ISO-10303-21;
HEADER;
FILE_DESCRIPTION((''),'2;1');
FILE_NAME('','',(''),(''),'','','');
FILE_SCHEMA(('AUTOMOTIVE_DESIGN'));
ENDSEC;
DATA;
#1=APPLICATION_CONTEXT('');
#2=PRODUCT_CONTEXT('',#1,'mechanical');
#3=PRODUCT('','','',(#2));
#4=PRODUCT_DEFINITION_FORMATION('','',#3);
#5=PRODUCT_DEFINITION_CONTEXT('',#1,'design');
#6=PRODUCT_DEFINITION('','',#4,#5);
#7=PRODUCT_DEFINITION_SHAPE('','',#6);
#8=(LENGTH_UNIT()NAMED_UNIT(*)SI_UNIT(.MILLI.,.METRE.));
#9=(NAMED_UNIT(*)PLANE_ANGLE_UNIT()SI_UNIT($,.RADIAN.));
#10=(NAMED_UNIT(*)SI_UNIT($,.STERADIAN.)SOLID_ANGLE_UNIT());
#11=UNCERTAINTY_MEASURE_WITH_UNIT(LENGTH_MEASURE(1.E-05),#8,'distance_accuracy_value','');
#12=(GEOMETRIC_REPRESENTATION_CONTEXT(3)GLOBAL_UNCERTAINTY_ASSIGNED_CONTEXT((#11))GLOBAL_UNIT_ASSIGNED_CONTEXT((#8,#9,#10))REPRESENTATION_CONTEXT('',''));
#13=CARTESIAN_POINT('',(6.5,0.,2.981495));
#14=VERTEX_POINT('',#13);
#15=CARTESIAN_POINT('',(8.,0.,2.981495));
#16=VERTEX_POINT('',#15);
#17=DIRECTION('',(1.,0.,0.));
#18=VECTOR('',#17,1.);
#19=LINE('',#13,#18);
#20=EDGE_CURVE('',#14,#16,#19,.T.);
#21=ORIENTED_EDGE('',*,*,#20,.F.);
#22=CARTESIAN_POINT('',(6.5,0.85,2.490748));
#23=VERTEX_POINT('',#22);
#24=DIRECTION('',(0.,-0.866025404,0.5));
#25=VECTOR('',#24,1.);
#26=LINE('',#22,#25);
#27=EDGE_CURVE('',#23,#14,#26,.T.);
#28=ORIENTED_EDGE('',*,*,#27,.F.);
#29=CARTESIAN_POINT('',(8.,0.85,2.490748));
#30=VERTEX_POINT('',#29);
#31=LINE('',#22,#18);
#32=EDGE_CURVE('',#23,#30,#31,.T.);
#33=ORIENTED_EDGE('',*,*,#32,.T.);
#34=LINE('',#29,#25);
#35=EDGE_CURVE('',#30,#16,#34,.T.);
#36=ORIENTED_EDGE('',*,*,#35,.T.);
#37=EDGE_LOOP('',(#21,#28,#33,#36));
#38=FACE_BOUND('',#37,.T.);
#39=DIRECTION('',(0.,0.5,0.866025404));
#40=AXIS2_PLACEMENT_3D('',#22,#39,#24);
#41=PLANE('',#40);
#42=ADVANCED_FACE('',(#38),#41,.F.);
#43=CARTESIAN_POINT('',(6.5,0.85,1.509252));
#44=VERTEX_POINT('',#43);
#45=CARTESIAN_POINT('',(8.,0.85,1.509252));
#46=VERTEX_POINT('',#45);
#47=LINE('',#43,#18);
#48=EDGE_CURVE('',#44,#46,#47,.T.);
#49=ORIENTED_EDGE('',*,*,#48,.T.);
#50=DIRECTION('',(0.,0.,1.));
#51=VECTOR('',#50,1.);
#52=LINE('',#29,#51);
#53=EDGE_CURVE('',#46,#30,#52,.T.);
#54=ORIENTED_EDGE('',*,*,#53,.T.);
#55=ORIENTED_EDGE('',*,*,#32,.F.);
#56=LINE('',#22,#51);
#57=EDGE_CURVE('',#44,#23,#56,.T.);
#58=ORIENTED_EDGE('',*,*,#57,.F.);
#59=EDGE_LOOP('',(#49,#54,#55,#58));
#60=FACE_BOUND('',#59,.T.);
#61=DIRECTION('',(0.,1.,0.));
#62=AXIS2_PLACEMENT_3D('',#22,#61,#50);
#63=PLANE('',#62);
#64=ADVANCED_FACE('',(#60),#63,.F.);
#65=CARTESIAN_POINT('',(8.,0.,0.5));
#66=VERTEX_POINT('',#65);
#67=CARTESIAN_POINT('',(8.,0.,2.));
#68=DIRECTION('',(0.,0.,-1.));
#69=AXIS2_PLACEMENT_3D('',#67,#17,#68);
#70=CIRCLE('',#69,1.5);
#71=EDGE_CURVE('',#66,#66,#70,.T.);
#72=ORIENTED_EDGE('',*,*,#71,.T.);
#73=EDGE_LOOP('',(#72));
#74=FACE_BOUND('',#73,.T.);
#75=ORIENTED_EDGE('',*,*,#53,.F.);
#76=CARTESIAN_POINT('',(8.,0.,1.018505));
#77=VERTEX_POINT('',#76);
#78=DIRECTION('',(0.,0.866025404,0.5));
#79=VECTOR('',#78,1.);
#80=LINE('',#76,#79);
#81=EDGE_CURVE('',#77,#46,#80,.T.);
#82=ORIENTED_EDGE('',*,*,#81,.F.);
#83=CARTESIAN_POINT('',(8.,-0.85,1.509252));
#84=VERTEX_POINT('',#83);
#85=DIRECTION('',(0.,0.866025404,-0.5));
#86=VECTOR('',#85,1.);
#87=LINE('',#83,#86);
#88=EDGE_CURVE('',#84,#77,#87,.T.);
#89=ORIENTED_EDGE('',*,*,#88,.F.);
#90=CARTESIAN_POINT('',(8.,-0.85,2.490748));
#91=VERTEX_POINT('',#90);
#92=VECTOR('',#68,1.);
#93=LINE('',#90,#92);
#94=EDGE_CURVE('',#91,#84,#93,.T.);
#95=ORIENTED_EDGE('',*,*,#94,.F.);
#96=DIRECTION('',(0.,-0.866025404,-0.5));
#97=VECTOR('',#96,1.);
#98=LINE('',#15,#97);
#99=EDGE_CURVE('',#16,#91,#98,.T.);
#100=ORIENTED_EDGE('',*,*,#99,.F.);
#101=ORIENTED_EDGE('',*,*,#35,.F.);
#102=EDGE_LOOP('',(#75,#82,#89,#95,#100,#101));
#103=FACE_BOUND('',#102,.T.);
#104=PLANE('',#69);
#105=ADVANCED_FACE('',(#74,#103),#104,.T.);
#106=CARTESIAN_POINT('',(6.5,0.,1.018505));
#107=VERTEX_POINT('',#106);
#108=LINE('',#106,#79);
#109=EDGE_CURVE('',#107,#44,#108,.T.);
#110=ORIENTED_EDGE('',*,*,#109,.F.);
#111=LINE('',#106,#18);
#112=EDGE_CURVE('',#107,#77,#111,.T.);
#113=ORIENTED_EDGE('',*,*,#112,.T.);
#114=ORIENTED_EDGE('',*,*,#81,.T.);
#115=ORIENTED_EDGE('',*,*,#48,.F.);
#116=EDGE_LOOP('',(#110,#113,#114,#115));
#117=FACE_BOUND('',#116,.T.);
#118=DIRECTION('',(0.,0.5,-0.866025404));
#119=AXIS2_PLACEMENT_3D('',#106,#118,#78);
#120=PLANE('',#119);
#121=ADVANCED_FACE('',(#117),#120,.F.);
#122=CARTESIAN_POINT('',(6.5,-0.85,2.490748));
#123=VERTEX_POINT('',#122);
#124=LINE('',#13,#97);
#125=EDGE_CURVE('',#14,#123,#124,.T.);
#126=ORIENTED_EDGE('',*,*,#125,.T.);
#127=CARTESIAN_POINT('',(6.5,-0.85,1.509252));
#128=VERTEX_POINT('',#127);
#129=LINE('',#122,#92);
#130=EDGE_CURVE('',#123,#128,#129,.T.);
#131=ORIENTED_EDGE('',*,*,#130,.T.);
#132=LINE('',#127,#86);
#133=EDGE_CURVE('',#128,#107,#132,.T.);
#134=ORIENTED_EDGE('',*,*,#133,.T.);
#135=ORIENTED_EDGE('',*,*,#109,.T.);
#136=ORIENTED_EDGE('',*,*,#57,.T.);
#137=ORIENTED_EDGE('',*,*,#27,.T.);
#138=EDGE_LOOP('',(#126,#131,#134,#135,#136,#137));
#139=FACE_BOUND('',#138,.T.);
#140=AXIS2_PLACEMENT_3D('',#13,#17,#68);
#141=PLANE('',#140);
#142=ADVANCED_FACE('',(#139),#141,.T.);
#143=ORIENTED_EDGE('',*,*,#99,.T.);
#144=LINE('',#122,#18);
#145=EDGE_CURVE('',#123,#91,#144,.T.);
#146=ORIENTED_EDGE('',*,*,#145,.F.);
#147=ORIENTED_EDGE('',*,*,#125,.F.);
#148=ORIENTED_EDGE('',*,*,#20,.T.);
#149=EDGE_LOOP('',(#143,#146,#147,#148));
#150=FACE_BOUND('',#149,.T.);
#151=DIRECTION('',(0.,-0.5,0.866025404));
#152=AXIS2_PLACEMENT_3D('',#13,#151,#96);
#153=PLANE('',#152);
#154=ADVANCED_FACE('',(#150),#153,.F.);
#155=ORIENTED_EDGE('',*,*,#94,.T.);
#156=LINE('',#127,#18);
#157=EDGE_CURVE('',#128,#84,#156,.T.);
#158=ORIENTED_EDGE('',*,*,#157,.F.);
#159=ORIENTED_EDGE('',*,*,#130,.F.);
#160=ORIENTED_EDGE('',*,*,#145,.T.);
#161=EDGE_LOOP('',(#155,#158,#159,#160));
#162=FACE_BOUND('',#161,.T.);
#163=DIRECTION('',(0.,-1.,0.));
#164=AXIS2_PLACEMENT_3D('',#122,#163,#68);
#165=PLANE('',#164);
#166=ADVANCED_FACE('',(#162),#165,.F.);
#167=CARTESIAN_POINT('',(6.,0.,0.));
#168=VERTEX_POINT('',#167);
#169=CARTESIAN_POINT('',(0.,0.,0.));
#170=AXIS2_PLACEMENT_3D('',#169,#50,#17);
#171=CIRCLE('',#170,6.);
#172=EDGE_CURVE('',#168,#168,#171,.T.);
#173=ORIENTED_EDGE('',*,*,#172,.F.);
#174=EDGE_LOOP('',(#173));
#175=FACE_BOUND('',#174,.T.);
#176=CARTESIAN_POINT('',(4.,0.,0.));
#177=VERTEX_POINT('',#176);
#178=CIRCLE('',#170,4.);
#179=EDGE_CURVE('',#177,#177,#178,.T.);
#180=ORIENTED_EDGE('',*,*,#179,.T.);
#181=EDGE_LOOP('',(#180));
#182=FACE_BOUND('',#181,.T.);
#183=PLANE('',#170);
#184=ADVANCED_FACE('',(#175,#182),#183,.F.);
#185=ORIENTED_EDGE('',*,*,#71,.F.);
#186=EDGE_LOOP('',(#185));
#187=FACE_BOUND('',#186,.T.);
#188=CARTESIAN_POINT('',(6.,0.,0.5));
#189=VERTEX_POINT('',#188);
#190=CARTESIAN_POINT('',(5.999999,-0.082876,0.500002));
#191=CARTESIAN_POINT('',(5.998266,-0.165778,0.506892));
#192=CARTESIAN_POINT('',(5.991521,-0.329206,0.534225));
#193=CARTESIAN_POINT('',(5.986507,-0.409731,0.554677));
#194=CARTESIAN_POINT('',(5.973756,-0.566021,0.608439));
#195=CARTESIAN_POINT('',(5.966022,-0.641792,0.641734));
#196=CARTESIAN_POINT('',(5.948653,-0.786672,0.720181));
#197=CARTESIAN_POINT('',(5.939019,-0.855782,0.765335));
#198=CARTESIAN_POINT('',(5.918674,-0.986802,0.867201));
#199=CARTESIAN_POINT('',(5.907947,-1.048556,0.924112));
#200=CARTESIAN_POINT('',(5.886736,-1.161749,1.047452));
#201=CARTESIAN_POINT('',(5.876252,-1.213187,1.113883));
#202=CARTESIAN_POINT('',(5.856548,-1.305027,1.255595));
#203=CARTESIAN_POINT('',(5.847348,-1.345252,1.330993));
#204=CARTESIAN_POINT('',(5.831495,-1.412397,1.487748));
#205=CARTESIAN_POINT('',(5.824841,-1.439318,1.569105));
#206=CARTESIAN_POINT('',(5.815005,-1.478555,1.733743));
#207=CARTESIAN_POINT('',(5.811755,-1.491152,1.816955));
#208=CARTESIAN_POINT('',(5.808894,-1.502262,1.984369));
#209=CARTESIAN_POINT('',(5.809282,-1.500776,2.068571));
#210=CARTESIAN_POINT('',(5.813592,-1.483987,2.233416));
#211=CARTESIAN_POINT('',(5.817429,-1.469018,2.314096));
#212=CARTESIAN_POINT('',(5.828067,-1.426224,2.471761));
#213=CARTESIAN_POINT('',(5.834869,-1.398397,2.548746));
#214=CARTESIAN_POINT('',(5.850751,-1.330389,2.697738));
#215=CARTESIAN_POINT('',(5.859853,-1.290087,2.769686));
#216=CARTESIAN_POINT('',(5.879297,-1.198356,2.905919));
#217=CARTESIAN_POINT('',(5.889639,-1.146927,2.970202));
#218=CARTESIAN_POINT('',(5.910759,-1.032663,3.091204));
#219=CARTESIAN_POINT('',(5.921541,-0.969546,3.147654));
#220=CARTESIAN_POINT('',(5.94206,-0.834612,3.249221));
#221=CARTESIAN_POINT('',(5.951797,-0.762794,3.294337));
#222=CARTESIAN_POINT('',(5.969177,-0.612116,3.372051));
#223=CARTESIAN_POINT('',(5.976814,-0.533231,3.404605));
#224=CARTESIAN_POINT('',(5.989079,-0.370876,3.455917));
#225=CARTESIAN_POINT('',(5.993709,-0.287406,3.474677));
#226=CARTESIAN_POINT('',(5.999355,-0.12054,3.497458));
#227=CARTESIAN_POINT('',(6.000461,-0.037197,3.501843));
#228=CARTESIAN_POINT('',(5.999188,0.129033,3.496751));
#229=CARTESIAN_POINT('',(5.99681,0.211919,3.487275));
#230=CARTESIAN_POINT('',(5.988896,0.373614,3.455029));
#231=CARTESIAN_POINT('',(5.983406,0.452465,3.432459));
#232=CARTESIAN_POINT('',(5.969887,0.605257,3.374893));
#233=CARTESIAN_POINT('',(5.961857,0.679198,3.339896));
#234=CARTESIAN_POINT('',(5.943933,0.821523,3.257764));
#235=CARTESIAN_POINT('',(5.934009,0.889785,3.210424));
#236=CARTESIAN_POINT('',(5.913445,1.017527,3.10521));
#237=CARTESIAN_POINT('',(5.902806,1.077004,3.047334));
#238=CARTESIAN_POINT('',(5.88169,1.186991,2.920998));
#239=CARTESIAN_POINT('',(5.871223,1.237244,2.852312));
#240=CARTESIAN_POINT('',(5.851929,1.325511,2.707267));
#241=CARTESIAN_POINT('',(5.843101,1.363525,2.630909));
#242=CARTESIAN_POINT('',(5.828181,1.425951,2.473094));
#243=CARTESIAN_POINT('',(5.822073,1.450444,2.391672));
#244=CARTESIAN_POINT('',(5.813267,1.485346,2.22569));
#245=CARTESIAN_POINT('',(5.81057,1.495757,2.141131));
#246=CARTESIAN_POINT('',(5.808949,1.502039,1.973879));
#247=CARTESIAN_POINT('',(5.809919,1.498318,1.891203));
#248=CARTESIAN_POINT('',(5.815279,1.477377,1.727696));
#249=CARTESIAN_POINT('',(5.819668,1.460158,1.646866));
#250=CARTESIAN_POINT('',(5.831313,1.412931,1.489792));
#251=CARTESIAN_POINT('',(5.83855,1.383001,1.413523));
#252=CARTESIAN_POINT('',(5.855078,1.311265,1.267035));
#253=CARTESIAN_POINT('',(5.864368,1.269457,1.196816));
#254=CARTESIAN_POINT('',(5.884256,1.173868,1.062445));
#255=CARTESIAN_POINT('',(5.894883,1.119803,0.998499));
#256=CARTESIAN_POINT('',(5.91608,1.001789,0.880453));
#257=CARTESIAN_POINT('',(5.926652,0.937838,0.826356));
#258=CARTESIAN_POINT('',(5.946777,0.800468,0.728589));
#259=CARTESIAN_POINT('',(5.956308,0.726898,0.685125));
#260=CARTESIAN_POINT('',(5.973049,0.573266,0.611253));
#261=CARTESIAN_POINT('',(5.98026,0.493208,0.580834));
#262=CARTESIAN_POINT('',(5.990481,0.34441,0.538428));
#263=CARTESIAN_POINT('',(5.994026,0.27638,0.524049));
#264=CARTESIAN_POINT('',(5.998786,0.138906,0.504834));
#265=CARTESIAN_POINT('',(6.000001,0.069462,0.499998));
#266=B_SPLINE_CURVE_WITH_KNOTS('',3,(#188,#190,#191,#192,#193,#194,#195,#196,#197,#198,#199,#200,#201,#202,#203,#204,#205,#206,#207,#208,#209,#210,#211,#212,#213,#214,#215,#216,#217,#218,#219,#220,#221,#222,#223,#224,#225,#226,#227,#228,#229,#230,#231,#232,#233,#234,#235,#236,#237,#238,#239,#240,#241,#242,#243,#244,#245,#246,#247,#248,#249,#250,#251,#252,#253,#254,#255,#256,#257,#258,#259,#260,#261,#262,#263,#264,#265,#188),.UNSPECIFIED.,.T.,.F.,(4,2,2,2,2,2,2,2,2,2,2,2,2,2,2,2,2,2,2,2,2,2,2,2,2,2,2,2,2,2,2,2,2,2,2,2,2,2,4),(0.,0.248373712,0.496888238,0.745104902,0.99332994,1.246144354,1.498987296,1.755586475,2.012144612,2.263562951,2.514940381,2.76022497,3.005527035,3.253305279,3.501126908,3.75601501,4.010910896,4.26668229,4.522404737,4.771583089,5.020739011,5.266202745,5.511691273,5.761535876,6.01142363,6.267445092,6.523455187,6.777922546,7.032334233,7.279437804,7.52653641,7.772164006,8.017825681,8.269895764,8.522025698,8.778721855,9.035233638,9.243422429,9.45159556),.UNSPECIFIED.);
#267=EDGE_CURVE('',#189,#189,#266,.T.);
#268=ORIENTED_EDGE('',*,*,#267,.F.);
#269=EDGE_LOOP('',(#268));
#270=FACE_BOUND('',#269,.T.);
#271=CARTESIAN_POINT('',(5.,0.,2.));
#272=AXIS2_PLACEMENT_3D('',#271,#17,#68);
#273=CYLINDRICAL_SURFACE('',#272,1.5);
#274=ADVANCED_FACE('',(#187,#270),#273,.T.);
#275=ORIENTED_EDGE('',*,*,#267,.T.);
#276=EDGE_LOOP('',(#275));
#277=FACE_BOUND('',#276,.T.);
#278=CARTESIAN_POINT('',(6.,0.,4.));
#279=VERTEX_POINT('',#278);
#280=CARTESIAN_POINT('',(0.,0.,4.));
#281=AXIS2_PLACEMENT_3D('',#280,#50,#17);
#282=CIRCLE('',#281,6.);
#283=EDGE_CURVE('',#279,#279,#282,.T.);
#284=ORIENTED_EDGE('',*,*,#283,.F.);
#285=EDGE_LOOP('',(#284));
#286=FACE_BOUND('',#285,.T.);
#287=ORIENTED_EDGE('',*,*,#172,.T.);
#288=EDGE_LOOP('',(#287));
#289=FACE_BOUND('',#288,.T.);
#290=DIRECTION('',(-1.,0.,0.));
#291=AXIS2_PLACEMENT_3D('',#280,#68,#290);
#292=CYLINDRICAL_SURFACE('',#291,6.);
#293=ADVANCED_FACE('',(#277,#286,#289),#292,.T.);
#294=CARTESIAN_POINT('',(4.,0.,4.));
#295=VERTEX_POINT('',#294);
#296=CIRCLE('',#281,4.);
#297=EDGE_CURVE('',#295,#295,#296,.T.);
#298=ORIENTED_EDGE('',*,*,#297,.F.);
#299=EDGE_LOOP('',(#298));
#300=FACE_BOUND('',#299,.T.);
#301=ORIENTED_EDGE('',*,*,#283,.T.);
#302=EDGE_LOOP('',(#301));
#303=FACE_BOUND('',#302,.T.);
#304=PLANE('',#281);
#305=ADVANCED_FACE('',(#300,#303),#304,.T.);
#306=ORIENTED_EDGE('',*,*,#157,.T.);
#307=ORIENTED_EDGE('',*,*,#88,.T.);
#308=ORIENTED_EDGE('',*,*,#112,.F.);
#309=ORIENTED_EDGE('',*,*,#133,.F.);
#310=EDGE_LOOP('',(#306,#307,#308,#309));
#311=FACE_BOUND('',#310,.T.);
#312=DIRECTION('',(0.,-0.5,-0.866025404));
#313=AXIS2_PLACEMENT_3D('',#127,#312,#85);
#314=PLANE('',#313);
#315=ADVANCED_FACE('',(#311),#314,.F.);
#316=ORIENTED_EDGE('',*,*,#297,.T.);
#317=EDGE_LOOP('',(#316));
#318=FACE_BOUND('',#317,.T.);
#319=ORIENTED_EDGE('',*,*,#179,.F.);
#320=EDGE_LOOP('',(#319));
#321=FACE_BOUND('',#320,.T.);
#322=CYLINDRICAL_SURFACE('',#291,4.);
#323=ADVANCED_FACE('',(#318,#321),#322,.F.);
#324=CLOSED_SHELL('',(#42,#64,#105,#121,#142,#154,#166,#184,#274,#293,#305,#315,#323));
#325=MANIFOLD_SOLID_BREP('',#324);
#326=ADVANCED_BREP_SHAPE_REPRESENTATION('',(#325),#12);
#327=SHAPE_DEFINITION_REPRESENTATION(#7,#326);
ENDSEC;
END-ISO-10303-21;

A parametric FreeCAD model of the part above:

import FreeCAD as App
import Part
import Sketcher
Q = App.Units.Quantity

doc = App.newDocument("Part")
body = doc.addObject("PartDesign::Body", "Body")

sketch1 = body.newObject("Sketcher::SketchObject", "Sketch")
sketch1.AttachmentSupport = (doc.getObject("XY_Plane"), [""])
sketch1.MapMode = "FlatFace"
sketch1.addGeometry(Part.Circle(App.Vector(0, 0, 0), App.Vector(0, 0, 1), 6), False)
sketch1.addGeometry(Part.Circle(App.Vector(0, 0, 0), App.Vector(0, 0, 1), 4), False)
sketch1.addConstraint(Sketcher.Constraint("Coincident", 0, 3, -1, 1))
sketch1.addConstraint(Sketcher.Constraint("Coincident", 1, 3, -1, 1))
sketch1.addConstraint(Sketcher.Constraint("Diameter", 0, 12.0))
sketch1.addConstraint(Sketcher.Constraint("Diameter", 1, 8.0))
pad1 = body.newObject("PartDesign::Pad", "Pad")
pad1.Profile = sketch1
pad1.Length = 4

sketch2 = body.newObject("Sketcher::SketchObject", "Sketch001")
sketch2.AttachmentSupport = (doc.getObject("YZ_Plane"), [""])
sketch2.MapMode = "FlatFace"
sketch2.AttachmentOffset = App.Placement(App.Vector(0, 0, 6), App.Rotation())
sketch2.addGeometry(Part.Circle(App.Vector(0, 2, 0), App.Vector(0, 0, 1), 1.5), False)
sketch2.addConstraint(Sketcher.Constraint("PointOnObject", 0, 3, -2))
sketch2.addConstraint(Sketcher.Constraint("Diameter", 0, 3.0))
sketch2.addConstraint(Sketcher.Constraint("DistanceY", -1, 1, 0, 3, 2.0))
pad2 = body.newObject("PartDesign::Pad", "Pad001")
pad2.Profile = sketch2
pad2.Type = "TwoLengths"
pad2.Length = 2
pad2.Length2 = 1

sketch3 = body.newObject("Sketcher::SketchObject", "Sketch002")
sketch3.AttachmentSupport = (doc.getObject("YZ_Plane"), [""])
sketch3.MapMode = "FlatFace"
sketch3.AttachmentOffset = App.Placement(App.Vector(0, 0, 8), App.Rotation())
sketch3.addGeometry(Part.LineSegment(App.Vector(0.8, 1.5, 0), App.Vector(0.8, 2.5, 0)), False)
sketch3.addGeometry(Part.LineSegment(App.Vector(0.8, 2.5, 0), App.Vector(0, 3, 0)), False)
sketch3.addGeometry(Part.LineSegment(App.Vector(0, 3, 0), App.Vector(-0.8, 2.5, 0)), False)
sketch3.addGeometry(Part.LineSegment(App.Vector(-0.8, 2.5, 0), App.Vector(-0.8, 1.5, 0)), False)
sketch3.addGeometry(Part.LineSegment(App.Vector(-0.8, 1.5, 0), App.Vector(0, 1, 0)), False)
sketch3.addGeometry(Part.LineSegment(App.Vector(0, 1, 0), App.Vector(0.8, 1.5, 0)), False)
sketch3.addConstraint(Sketcher.Constraint("Coincident", 0, 2, 1, 1))
sketch3.addConstraint(Sketcher.Constraint("Coincident", 1, 2, 2, 1))
sketch3.addConstraint(Sketcher.Constraint("Coincident", 2, 2, 3, 1))
sketch3.addConstraint(Sketcher.Constraint("Coincident", 3, 2, 4, 1))
sketch3.addConstraint(Sketcher.Constraint("Coincident", 4, 2, 5, 1))
sketch3.addConstraint(Sketcher.Constraint("Coincident", 5, 2, 0, 1))
sketch3.addConstraint(Sketcher.Constraint("Vertical", 0))
sketch3.addConstraint(Sketcher.Constraint("Vertical", 3))
sketch3.addConstraint(Sketcher.Constraint("Symmetric", 0, 2, 2, 2, -2))
sketch3.addConstraint(Sketcher.Constraint("PointOnObject", 1, 2, -2))
sketch3.addConstraint(Sketcher.Constraint("PointOnObject", 4, 2, -2))
sketch3.addConstraint(Sketcher.Constraint("Parallel", 1, 4))
sketch3.addConstraint(Sketcher.Constraint("Parallel", 2, 5))
sketch3.addConstraint(Sketcher.Constraint("Angle", 1, Q("150 deg")))
sketch3.addConstraint(Sketcher.Constraint("DistanceX", 2, 2, 0, 2, 1.7))
sketch3.addConstraint(Sketcher.Constraint("DistanceY", 0, 1, 0, 2, 0.981495))
sketch3.addConstraint(Sketcher.Constraint("DistanceY", -1, 1, 0, 2, 2.490748))
pocket1 = body.newObject("PartDesign::Pocket", "Pocket")
pocket1.Profile = sketch3
pocket1.Length = 1.5

doc.recompute()
